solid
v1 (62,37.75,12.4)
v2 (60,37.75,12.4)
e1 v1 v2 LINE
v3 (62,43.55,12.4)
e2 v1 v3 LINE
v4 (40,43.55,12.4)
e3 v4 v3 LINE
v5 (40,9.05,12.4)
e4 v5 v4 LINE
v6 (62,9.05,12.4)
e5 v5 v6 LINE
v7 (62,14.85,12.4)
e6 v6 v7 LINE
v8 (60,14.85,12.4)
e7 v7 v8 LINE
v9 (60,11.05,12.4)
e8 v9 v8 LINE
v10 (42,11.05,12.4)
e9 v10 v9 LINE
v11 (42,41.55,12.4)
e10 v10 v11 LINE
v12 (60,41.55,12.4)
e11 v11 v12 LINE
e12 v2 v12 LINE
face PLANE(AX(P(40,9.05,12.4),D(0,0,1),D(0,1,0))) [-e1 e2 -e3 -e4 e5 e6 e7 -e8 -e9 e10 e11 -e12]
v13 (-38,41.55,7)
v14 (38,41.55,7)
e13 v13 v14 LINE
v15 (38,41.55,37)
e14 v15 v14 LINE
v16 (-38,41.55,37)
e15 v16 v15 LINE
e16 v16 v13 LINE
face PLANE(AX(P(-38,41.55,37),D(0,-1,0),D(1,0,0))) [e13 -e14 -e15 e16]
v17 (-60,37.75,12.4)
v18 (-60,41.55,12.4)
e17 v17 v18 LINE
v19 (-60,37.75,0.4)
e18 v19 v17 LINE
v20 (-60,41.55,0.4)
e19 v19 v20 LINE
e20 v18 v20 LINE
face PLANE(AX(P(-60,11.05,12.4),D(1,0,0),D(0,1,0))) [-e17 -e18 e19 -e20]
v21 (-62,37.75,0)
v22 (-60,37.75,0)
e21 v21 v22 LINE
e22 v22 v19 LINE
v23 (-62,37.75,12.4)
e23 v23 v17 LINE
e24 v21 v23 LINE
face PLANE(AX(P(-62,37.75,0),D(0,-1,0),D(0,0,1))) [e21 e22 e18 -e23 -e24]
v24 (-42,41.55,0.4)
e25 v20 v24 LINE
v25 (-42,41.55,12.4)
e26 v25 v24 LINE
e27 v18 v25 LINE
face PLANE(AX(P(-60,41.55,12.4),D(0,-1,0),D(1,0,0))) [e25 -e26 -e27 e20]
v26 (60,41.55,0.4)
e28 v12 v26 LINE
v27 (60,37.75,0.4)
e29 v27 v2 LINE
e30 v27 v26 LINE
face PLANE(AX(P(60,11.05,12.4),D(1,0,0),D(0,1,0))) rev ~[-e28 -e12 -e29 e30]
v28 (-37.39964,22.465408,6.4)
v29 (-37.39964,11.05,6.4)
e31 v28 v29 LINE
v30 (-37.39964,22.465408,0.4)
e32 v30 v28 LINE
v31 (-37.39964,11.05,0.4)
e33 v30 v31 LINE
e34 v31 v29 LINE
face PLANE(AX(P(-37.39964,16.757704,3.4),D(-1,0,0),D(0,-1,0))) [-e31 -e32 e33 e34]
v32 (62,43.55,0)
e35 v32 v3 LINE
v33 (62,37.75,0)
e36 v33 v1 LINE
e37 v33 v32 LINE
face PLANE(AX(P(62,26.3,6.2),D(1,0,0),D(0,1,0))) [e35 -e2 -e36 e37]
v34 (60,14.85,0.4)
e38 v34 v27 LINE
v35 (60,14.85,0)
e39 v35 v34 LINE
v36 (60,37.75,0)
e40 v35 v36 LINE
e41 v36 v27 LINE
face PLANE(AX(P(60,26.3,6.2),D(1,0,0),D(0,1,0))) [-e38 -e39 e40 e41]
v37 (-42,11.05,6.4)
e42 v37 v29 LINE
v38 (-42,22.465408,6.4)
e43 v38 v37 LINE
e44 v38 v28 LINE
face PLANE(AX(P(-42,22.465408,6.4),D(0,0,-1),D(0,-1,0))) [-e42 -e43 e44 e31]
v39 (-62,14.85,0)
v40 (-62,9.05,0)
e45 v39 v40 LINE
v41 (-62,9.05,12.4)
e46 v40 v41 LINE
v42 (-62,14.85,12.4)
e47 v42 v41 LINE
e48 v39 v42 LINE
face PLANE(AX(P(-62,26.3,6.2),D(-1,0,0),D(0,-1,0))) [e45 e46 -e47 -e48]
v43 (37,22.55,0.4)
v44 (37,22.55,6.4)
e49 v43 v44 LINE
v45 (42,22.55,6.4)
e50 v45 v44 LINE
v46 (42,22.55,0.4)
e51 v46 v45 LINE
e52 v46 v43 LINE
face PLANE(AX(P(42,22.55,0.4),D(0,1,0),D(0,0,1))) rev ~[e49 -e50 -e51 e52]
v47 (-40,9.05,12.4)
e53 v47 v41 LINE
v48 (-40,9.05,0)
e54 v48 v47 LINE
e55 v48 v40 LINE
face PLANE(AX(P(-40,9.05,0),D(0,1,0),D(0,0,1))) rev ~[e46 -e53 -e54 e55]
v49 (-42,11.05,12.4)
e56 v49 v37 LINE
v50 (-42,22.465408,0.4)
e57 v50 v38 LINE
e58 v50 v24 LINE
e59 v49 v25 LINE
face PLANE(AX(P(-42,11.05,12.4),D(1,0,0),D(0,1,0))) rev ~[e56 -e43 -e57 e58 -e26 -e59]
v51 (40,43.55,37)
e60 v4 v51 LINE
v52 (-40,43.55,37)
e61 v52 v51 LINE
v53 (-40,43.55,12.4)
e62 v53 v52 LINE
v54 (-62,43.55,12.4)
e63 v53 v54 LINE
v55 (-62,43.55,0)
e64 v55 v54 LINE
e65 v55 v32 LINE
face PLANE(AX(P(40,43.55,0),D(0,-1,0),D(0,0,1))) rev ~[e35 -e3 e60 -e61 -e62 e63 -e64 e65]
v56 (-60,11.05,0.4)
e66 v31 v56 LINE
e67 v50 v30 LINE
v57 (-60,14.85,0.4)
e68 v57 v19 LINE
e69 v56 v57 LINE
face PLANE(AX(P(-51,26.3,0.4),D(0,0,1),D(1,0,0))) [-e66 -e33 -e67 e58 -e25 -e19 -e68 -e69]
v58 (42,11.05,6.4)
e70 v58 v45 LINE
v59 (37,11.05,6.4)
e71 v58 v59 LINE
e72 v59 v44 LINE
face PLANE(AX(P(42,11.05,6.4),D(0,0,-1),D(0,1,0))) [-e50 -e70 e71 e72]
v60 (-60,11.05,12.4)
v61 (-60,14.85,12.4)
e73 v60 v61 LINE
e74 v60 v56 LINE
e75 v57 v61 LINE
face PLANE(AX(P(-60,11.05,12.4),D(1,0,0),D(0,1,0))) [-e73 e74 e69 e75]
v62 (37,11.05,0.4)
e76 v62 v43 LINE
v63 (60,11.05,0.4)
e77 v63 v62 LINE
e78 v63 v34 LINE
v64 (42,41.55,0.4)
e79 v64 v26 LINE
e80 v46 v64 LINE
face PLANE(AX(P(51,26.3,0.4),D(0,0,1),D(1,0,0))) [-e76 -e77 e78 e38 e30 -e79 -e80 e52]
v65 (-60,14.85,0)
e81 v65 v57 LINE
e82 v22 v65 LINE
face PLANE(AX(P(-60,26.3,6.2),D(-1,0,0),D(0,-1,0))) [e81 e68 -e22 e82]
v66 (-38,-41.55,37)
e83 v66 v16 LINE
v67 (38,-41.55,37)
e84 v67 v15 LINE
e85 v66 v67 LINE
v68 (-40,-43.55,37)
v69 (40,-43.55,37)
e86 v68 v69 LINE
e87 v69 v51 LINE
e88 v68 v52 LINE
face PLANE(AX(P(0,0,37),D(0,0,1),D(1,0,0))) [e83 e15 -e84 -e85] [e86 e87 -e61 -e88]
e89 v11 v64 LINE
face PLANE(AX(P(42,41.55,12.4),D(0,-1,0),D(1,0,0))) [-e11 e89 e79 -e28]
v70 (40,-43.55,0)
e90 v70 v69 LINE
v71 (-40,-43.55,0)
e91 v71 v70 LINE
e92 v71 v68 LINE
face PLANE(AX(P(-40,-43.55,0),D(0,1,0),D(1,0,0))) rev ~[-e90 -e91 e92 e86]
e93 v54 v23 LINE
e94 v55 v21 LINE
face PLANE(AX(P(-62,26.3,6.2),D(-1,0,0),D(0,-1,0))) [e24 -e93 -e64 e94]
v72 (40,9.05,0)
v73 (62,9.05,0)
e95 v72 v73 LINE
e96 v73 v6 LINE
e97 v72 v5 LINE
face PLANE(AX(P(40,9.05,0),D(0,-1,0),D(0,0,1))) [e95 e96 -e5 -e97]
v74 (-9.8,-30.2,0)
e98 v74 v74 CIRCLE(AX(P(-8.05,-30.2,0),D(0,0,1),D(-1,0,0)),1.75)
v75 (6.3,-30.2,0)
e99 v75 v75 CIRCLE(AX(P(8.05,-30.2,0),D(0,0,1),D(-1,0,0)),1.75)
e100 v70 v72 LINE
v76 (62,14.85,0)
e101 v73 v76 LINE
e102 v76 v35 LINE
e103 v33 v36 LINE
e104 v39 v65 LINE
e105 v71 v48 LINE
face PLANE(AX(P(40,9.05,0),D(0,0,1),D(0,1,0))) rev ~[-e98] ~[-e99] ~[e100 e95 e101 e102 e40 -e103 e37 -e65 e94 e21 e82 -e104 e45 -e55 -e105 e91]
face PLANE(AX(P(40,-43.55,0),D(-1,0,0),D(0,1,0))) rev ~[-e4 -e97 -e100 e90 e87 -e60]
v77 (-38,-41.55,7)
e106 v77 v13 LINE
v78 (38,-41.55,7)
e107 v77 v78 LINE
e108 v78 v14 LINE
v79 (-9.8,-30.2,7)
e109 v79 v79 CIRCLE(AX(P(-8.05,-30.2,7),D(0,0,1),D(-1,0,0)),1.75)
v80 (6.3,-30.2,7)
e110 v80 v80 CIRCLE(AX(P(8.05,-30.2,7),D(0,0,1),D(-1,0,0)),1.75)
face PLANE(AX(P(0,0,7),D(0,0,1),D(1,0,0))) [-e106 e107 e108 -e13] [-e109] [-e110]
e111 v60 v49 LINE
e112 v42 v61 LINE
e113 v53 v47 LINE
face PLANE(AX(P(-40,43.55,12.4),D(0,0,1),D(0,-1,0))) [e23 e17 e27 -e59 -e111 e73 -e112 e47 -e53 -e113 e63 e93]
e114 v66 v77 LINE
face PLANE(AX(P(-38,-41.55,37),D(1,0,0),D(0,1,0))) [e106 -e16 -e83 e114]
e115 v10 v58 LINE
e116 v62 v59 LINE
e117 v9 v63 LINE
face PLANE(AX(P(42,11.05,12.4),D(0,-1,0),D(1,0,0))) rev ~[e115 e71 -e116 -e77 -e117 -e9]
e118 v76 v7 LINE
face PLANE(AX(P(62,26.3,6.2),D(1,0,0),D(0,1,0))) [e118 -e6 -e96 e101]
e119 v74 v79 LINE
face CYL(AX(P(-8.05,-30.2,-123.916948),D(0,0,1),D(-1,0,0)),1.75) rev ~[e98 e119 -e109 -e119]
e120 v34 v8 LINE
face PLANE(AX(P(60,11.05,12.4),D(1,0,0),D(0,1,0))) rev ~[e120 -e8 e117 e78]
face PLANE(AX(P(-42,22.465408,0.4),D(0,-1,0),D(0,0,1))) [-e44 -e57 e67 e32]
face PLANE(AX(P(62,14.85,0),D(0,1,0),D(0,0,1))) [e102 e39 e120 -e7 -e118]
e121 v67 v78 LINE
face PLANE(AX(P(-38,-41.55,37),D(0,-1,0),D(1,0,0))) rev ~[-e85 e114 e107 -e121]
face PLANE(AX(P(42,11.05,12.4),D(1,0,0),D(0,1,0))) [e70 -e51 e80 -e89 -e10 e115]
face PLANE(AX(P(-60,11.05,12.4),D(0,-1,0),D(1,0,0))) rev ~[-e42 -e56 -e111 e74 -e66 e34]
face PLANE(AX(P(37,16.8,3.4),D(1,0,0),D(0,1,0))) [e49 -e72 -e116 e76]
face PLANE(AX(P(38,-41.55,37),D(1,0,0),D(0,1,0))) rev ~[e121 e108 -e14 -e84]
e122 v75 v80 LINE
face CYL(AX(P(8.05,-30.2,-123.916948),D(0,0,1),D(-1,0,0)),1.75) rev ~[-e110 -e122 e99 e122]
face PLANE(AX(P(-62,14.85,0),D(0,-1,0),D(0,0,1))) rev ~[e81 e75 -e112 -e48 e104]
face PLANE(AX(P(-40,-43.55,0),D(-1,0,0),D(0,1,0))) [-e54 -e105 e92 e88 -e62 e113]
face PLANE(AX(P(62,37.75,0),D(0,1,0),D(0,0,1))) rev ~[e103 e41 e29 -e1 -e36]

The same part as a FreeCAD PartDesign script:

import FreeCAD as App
import Part
import Sketcher
from FreeCAD import Vector
Q = App.Units.Quantity


def add_polygon(sketch, points):
    """Adds a closed chain of lines whose ends are joined by coincident constraints."""
    first, n = sketch.GeometryCount, len(points)
    for a, b in zip(points, points[1:] + points[:1]):
        sketch.addGeometry(Part.LineSegment(App.Vector(*a, 0), App.Vector(*b, 0)), False)
    for i in range(n):
        sketch.addConstraint(Sketcher.Constraint("Coincident", first + i, 2, first + (i + 1) % n, 1))

doc = App.newDocument("Part")
body = doc.addObject("PartDesign::Body", "Body")

sketch1 = body.newObject("Sketcher::SketchObject", "Sketch")
sketch1.AttachmentSupport = (doc.getObject("XY_Plane"), [""])
sketch1.MapMode = "FlatFace"
add_polygon(sketch1, [(-40, 44), (-40, -44), (40, -44), (40, 44)])
sketch1.addConstraint(Sketcher.Constraint("Vertical", 0))
sketch1.addConstraint(Sketcher.Constraint("Horizontal", 1))
sketch1.addConstraint(Sketcher.Constraint("Vertical", 2))
sketch1.addConstraint(Sketcher.Constraint("Horizontal", 3))
sketch1.addConstraint(Sketcher.Constraint("Symmetric", 0, 2, 2, 2, -1, 1))
sketch1.addConstraint(Sketcher.Constraint("DistanceX", 1, 1, 1, 2, Q("80 mm")))
sketch1.addConstraint(Sketcher.Constraint("DistanceY", 0, 2, 0, 1, Q("87.1 mm")))
pad1 = body.newObject("PartDesign::Pad", "Pad")
pad1.Profile = sketch1
pad1.Length = 37

sketch2 = body.newObject("Sketcher::SketchObject", "Sketch001")
sketch2.AttachmentSupport = (doc.getObject("XY_Plane"), [""])
sketch2.MapMode = "FlatFace"
sketch2.AttachmentOffset = App.Placement(Vector(0, 0, 37), App.Rotation())
add_polygon(sketch2, [(-38, 42), (-38, -42), (38, -42), (38, 42)])
sketch2.addConstraint(Sketcher.Constraint("Vertical", 0))
sketch2.addConstraint(Sketcher.Constraint("Horizontal", 1))
sketch2.addConstraint(Sketcher.Constraint("Vertical", 2))
sketch2.addConstraint(Sketcher.Constraint("Horizontal", 3))
sketch2.addConstraint(Sketcher.Constraint("Symmetric", 0, 2, 2, 2, -1, 1))
sketch2.addConstraint(Sketcher.Constraint("DistanceX", 1, 1, 1, 2, Q("76 mm")))
sketch2.addConstraint(Sketcher.Constraint("DistanceY", 0, 2, 0, 1, Q("83.1 mm")))
pocket1 = body.newObject("PartDesign::Pocket", "Pocket")
pocket1.Profile = sketch2
pocket1.Length = 30

sketch3 = body.newObject("Sketcher::SketchObject", "Sketch002")
sketch3.AttachmentSupport = (doc.getObject("XY_Plane"), [""])
sketch3.MapMode = "FlatFace"
sketch3.addGeometry(Part.Circle(Vector(-8.1, -30.2, 0), Vector(0, 0, 1), 1.8), False)
sketch3.addGeometry(Part.Circle(Vector(8.1, -30.2, 0), Vector(0, 0, 1), 1.8), False)
sketch3.addConstraint(Sketcher.Constraint("Equal", 0, 1))
sketch3.addConstraint(Sketcher.Constraint("Symmetric", 0, 3, 1, 3, -2))
sketch3.addConstraint(Sketcher.Constraint("Diameter", 0, Q("3.5 mm")))
sketch3.addConstraint(Sketcher.Constraint("DistanceY", 0, 3, -1, 1, Q("30.2 mm")))
sketch3.addConstraint(Sketcher.Constraint("DistanceX", 0, 3, 1, 3, Q("16.1 mm")))
doc.recompute()
hole = body.newObject("PartDesign::Hole", "Hole")
hole.Profile = sketch3
hole.ThreadType = "None"
hole.Diameter = 3.5
hole.DepthType = "ThroughAll"
hole.Reversed = True

sketch4 = body.newObject("Sketcher::SketchObject", "Sketch003")
sketch4.AttachmentSupport = (doc.getObject("YZ_Plane"), [""])
sketch4.MapMode = "FlatFace"
sketch4.AttachmentOffset = App.Placement(Vector(0, 0, -40), App.Rotation())
add_polygon(sketch4, [(44, 12), (44, 0), (9, 0), (9, 12)])
sketch4.addConstraint(Sketcher.Constraint("Vertical", 0))
sketch4.addConstraint(Sketcher.Constraint("Horizontal", 1))
sketch4.addConstraint(Sketcher.Constraint("Vertical", 2))
sketch4.addConstraint(Sketcher.Constraint("Horizontal", 3))
sketch4.addConstraint(Sketcher.Constraint("PointOnObject", 0, 2, -1))
sketch4.addConstraint(Sketcher.Constraint("DistanceX", 1, 2, 1, 1, Q("34.5 mm")))
sketch4.addConstraint(Sketcher.Constraint("DistanceY", 0, 2, 0, 1, Q("12.4 mm")))
sketch4.addConstraint(Sketcher.Constraint("DistanceX", -1, 1, 0, 2, Q("43.55 mm")))
pad2 = body.newObject("PartDesign::Pad", "Pad001")
pad2.Profile = sketch4
pad2.Length = 22
pad2.Reversed = True

sketch5 = body.newObject("Sketcher::SketchObject", "Sketch004")
sketch5.AttachmentSupport = (doc.getObject("XY_Plane"), [""])
sketch5.MapMode = "FlatFace"
sketch5.AttachmentOffset = App.Placement(Vector(0, 0, 12.4), App.Rotation())
add_polygon(sketch5, [(-60, 42), (-60, 11), (-42, 11), (-42, 42)])
sketch5.addConstraint(Sketcher.Constraint("Vertical", 0))
sketch5.addConstraint(Sketcher.Constraint("Horizontal", 1))
sketch5.addConstraint(Sketcher.Constraint("Vertical", 2))
sketch5.addConstraint(Sketcher.Constraint("Horizontal", 3))
sketch5.addConstraint(Sketcher.Constraint("DistanceX", 1, 1, 1, 2, Q("18 mm")))
sketch5.addConstraint(Sketcher.Constraint("DistanceY", 0, 2, 0, 1, Q("30.5 mm")))
sketch5.addConstraint(Sketcher.Constraint("DistanceX", 0, 2, -1, 1, Q("60 mm")))
sketch5.addConstraint(Sketcher.Constraint("DistanceY", -1, 1, 0, 2, Q("11.05 mm")))
pocket2 = body.newObject("PartDesign::Pocket", "Pocket001")
pocket2.Profile = sketch5
pocket2.Length = 12

sketch6 = body.newObject("Sketcher::SketchObject", "Sketch005")
sketch6.AttachmentSupport = (doc.getObject("YZ_Plane"), [""])
sketch6.MapMode = "FlatFace"
sketch6.AttachmentOffset = App.Placement(Vector(0, 0, -42), App.Rotation())
add_polygon(sketch6, [(22, 6), (22, 0), (11, 0), (11, 6)])
sketch6.addConstraint(Sketcher.Constraint("Vertical", 0))
sketch6.addConstraint(Sketcher.Constraint("Horizontal", 1))
sketch6.addConstraint(Sketcher.Constraint("Vertical", 2))
sketch6.addConstraint(Sketcher.Constraint("Horizontal", 3))
sketch6.addConstraint(Sketcher.Constraint("DistanceY", 0, 2, 0, 1, Q("6 mm")))
sketch6.addConstraint(Sketcher.Constraint("DistanceY", -1, 1, 0, 2, Q("0.4 mm")))
sketch6.addConstraint(Sketcher.Constraint("DistanceX", -1, 1, 1, 2, Q("11.05 mm")))
sketch6.addConstraint(Sketcher.Constraint("DistanceX", 1, 2, 1, 1, Q("11.415408 mm")))
pocket3 = body.newObject("PartDesign::Pocket", "Pocket002")
pocket3.Profile = sketch6
pocket3.Length = 4.60036
pocket3.Reversed = True

sketch7 = body.newObject("Sketcher::SketchObject", "Sketch006")
sketch7.AttachmentSupport = (doc.getObject("YZ_Plane"), [""])
sketch7.MapMode = "FlatFace"
sketch7.AttachmentOffset = App.Placement(Vector(0, 0, 40), App.Rotation())
add_polygon(sketch7, [(9, 12), (9, 0), (44, 0), (44, 12)])
sketch7.addConstraint(Sketcher.Constraint("Vertical", 0))
sketch7.addConstraint(Sketcher.Constraint("Horizontal", 1))
sketch7.addConstraint(Sketcher.Constraint("Vertical", 2))
sketch7.addConstraint(Sketcher.Constraint("Horizontal", 3))
sketch7.addConstraint(Sketcher.Constraint("PointOnObject", 0, 2, -1))
sketch7.addConstraint(Sketcher.Constraint("DistanceX", 1, 1, 1, 2, Q("34.5 mm")))
sketch7.addConstraint(Sketcher.Constraint("DistanceY", 0, 2, 0, 1, Q("12.4 mm")))
sketch7.addConstraint(Sketcher.Constraint("DistanceX", -1, 1, 0, 2, Q("9.05 mm")))
pad3 = body.newObject("PartDesign::Pad", "Pad002")
pad3.Profile = sketch7
pad3.Length = 22

sketch8 = body.newObject("Sketcher::SketchObject", "Sketch007")
sketch8.AttachmentSupport = (doc.getObject("XY_Plane"), [""])
sketch8.MapMode = "FlatFace"
sketch8.AttachmentOffset = App.Placement(Vector(0, 0, 12.4), App.Rotation())
add_polygon(sketch8, [(42, 42), (42, 11), (60, 11), (60, 42)])
sketch8.addConstraint(Sketcher.Constraint("Vertical", 0))
sketch8.addConstraint(Sketcher.Constraint("Horizontal", 1))
sketch8.addConstraint(Sketcher.Constraint("Vertical", 2))
sketch8.addConstraint(Sketcher.Constraint("Horizontal", 3))
sketch8.addConstraint(Sketcher.Constraint("DistanceX", 1, 1, 1, 2, Q("18 mm")))
sketch8.addConstraint(Sketcher.Constraint("DistanceY", 0, 2, 0, 1, Q("30.5 mm")))
sketch8.addConstraint(Sketcher.Constraint("DistanceX", -1, 1, 0, 2, Q("42 mm")))
sketch8.addConstraint(Sketcher.Constraint("DistanceY", -1, 1, 0, 2, Q("11.05 mm")))
pocket4 = body.newObject("PartDesign::Pocket", "Pocket003")
pocket4.Profile = sketch8
pocket4.Length = 12

sketch9 = body.newObject("Sketcher::SketchObject", "Sketch008")
sketch9.AttachmentSupport = (doc.getObject("YZ_Plane"), [""])
sketch9.MapMode = "FlatFace"
sketch9.AttachmentOffset = App.Placement(Vector(0, 0, 42), App.Rotation())
add_polygon(sketch9, [(11, 6), (11, 0), (23, 0), (23, 6)])
sketch9.addConstraint(Sketcher.Constraint("Vertical", 0))
sketch9.addConstraint(Sketcher.Constraint("Horizontal", 1))
sketch9.addConstraint(Sketcher.Constraint("Vertical", 2))
sketch9.addConstraint(Sketcher.Constraint("Horizontal", 3))
sketch9.addConstraint(Sketcher.Constraint("DistanceY", 0, 2, 0, 1, Q("6 mm")))
sketch9.addConstraint(Sketcher.Constraint("DistanceX", 1, 1, 1, 2, Q("11.5 mm")))
sketch9.addConstraint(Sketcher.Constraint("DistanceY", -1, 1, 0, 2, Q("0.4 mm")))
sketch9.addConstraint(Sketcher.Constraint("DistanceX", -1, 1, 0, 2, Q("11.05 mm")))
pocket5 = body.newObject("PartDesign::Pocket", "Pocket004")
pocket5.Profile = sketch9
pocket5.Length = 5

sketch10 = body.newObject("Sketcher::SketchObject", "Sketch009")
sketch10.AttachmentSupport = (doc.getObject("YZ_Plane"), [""])
sketch10.MapMode = "FlatFace"
sketch10.AttachmentOffset = App.Placement(Vector(0, 0, -62), App.Rotation())
add_polygon(sketch10, [(38, 12), (38, 0), (15, 0), (15, 12)])
sketch10.addConstraint(Sketcher.Constraint("Vertical", 0))
sketch10.addConstraint(Sketcher.Constraint("Horizontal", 1))
sketch10.addConstraint(Sketcher.Constraint("Vertical", 2))
sketch10.addConstraint(Sketcher.Constraint("Horizontal", 3))
sketch10.addConstraint(Sketcher.Constraint("PointOnObject", 0, 2, -1))
sketch10.addConstraint(Sketcher.Constraint("DistanceX", 1, 2, 1, 1, Q("22.9 mm")))
sketch10.addConstraint(Sketcher.Constraint("DistanceY", 0, 2, 0, 1, Q("12.4 mm")))
sketch10.addConstraint(Sketcher.Constraint("DistanceX", -1, 1, 0, 2, Q("37.75 mm")))
pocket6 = body.newObject("PartDesign::Pocket", "Pocket005")
pocket6.Profile = sketch10
pocket6.Length = 2
pocket6.Reversed = True

sketch11 = body.newObject("Sketcher::SketchObject", "Sketch010")
sketch11.AttachmentSupport = (doc.getObject("YZ_Plane"), [""])
sketch11.MapMode = "FlatFace"
sketch11.AttachmentOffset = App.Placement(Vector(0, 0, 62), App.Rotation())
add_polygon(sketch11, [(15, 12), (15, 0), (38, 0), (38, 12)])
sketch11.addConstraint(Sketcher.Constraint("Vertical", 0))
sketch11.addConstraint(Sketcher.Constraint("Horizontal", 1))
sketch11.addConstraint(Sketcher.Constraint("Vertical", 2))
sketch11.addConstraint(Sketcher.Constraint("Horizontal", 3))
sketch11.addConstraint(Sketcher.Constraint("PointOnObject", 0, 2, -1))
sketch11.addConstraint(Sketcher.Constraint("DistanceX", 1, 1, 1, 2, Q("22.9 mm")))
sketch11.addConstraint(Sketcher.Constraint("DistanceY", 0, 2, 0, 1, Q("12.4 mm")))
sketch11.addConstraint(Sketcher.Constraint("DistanceX", -1, 1, 0, 2, Q("14.85 mm")))
pocket7 = body.newObject("PartDesign::Pocket", "Pocket006")
pocket7.Profile = sketch11
pocket7.Length = 2

doc.recompute()
